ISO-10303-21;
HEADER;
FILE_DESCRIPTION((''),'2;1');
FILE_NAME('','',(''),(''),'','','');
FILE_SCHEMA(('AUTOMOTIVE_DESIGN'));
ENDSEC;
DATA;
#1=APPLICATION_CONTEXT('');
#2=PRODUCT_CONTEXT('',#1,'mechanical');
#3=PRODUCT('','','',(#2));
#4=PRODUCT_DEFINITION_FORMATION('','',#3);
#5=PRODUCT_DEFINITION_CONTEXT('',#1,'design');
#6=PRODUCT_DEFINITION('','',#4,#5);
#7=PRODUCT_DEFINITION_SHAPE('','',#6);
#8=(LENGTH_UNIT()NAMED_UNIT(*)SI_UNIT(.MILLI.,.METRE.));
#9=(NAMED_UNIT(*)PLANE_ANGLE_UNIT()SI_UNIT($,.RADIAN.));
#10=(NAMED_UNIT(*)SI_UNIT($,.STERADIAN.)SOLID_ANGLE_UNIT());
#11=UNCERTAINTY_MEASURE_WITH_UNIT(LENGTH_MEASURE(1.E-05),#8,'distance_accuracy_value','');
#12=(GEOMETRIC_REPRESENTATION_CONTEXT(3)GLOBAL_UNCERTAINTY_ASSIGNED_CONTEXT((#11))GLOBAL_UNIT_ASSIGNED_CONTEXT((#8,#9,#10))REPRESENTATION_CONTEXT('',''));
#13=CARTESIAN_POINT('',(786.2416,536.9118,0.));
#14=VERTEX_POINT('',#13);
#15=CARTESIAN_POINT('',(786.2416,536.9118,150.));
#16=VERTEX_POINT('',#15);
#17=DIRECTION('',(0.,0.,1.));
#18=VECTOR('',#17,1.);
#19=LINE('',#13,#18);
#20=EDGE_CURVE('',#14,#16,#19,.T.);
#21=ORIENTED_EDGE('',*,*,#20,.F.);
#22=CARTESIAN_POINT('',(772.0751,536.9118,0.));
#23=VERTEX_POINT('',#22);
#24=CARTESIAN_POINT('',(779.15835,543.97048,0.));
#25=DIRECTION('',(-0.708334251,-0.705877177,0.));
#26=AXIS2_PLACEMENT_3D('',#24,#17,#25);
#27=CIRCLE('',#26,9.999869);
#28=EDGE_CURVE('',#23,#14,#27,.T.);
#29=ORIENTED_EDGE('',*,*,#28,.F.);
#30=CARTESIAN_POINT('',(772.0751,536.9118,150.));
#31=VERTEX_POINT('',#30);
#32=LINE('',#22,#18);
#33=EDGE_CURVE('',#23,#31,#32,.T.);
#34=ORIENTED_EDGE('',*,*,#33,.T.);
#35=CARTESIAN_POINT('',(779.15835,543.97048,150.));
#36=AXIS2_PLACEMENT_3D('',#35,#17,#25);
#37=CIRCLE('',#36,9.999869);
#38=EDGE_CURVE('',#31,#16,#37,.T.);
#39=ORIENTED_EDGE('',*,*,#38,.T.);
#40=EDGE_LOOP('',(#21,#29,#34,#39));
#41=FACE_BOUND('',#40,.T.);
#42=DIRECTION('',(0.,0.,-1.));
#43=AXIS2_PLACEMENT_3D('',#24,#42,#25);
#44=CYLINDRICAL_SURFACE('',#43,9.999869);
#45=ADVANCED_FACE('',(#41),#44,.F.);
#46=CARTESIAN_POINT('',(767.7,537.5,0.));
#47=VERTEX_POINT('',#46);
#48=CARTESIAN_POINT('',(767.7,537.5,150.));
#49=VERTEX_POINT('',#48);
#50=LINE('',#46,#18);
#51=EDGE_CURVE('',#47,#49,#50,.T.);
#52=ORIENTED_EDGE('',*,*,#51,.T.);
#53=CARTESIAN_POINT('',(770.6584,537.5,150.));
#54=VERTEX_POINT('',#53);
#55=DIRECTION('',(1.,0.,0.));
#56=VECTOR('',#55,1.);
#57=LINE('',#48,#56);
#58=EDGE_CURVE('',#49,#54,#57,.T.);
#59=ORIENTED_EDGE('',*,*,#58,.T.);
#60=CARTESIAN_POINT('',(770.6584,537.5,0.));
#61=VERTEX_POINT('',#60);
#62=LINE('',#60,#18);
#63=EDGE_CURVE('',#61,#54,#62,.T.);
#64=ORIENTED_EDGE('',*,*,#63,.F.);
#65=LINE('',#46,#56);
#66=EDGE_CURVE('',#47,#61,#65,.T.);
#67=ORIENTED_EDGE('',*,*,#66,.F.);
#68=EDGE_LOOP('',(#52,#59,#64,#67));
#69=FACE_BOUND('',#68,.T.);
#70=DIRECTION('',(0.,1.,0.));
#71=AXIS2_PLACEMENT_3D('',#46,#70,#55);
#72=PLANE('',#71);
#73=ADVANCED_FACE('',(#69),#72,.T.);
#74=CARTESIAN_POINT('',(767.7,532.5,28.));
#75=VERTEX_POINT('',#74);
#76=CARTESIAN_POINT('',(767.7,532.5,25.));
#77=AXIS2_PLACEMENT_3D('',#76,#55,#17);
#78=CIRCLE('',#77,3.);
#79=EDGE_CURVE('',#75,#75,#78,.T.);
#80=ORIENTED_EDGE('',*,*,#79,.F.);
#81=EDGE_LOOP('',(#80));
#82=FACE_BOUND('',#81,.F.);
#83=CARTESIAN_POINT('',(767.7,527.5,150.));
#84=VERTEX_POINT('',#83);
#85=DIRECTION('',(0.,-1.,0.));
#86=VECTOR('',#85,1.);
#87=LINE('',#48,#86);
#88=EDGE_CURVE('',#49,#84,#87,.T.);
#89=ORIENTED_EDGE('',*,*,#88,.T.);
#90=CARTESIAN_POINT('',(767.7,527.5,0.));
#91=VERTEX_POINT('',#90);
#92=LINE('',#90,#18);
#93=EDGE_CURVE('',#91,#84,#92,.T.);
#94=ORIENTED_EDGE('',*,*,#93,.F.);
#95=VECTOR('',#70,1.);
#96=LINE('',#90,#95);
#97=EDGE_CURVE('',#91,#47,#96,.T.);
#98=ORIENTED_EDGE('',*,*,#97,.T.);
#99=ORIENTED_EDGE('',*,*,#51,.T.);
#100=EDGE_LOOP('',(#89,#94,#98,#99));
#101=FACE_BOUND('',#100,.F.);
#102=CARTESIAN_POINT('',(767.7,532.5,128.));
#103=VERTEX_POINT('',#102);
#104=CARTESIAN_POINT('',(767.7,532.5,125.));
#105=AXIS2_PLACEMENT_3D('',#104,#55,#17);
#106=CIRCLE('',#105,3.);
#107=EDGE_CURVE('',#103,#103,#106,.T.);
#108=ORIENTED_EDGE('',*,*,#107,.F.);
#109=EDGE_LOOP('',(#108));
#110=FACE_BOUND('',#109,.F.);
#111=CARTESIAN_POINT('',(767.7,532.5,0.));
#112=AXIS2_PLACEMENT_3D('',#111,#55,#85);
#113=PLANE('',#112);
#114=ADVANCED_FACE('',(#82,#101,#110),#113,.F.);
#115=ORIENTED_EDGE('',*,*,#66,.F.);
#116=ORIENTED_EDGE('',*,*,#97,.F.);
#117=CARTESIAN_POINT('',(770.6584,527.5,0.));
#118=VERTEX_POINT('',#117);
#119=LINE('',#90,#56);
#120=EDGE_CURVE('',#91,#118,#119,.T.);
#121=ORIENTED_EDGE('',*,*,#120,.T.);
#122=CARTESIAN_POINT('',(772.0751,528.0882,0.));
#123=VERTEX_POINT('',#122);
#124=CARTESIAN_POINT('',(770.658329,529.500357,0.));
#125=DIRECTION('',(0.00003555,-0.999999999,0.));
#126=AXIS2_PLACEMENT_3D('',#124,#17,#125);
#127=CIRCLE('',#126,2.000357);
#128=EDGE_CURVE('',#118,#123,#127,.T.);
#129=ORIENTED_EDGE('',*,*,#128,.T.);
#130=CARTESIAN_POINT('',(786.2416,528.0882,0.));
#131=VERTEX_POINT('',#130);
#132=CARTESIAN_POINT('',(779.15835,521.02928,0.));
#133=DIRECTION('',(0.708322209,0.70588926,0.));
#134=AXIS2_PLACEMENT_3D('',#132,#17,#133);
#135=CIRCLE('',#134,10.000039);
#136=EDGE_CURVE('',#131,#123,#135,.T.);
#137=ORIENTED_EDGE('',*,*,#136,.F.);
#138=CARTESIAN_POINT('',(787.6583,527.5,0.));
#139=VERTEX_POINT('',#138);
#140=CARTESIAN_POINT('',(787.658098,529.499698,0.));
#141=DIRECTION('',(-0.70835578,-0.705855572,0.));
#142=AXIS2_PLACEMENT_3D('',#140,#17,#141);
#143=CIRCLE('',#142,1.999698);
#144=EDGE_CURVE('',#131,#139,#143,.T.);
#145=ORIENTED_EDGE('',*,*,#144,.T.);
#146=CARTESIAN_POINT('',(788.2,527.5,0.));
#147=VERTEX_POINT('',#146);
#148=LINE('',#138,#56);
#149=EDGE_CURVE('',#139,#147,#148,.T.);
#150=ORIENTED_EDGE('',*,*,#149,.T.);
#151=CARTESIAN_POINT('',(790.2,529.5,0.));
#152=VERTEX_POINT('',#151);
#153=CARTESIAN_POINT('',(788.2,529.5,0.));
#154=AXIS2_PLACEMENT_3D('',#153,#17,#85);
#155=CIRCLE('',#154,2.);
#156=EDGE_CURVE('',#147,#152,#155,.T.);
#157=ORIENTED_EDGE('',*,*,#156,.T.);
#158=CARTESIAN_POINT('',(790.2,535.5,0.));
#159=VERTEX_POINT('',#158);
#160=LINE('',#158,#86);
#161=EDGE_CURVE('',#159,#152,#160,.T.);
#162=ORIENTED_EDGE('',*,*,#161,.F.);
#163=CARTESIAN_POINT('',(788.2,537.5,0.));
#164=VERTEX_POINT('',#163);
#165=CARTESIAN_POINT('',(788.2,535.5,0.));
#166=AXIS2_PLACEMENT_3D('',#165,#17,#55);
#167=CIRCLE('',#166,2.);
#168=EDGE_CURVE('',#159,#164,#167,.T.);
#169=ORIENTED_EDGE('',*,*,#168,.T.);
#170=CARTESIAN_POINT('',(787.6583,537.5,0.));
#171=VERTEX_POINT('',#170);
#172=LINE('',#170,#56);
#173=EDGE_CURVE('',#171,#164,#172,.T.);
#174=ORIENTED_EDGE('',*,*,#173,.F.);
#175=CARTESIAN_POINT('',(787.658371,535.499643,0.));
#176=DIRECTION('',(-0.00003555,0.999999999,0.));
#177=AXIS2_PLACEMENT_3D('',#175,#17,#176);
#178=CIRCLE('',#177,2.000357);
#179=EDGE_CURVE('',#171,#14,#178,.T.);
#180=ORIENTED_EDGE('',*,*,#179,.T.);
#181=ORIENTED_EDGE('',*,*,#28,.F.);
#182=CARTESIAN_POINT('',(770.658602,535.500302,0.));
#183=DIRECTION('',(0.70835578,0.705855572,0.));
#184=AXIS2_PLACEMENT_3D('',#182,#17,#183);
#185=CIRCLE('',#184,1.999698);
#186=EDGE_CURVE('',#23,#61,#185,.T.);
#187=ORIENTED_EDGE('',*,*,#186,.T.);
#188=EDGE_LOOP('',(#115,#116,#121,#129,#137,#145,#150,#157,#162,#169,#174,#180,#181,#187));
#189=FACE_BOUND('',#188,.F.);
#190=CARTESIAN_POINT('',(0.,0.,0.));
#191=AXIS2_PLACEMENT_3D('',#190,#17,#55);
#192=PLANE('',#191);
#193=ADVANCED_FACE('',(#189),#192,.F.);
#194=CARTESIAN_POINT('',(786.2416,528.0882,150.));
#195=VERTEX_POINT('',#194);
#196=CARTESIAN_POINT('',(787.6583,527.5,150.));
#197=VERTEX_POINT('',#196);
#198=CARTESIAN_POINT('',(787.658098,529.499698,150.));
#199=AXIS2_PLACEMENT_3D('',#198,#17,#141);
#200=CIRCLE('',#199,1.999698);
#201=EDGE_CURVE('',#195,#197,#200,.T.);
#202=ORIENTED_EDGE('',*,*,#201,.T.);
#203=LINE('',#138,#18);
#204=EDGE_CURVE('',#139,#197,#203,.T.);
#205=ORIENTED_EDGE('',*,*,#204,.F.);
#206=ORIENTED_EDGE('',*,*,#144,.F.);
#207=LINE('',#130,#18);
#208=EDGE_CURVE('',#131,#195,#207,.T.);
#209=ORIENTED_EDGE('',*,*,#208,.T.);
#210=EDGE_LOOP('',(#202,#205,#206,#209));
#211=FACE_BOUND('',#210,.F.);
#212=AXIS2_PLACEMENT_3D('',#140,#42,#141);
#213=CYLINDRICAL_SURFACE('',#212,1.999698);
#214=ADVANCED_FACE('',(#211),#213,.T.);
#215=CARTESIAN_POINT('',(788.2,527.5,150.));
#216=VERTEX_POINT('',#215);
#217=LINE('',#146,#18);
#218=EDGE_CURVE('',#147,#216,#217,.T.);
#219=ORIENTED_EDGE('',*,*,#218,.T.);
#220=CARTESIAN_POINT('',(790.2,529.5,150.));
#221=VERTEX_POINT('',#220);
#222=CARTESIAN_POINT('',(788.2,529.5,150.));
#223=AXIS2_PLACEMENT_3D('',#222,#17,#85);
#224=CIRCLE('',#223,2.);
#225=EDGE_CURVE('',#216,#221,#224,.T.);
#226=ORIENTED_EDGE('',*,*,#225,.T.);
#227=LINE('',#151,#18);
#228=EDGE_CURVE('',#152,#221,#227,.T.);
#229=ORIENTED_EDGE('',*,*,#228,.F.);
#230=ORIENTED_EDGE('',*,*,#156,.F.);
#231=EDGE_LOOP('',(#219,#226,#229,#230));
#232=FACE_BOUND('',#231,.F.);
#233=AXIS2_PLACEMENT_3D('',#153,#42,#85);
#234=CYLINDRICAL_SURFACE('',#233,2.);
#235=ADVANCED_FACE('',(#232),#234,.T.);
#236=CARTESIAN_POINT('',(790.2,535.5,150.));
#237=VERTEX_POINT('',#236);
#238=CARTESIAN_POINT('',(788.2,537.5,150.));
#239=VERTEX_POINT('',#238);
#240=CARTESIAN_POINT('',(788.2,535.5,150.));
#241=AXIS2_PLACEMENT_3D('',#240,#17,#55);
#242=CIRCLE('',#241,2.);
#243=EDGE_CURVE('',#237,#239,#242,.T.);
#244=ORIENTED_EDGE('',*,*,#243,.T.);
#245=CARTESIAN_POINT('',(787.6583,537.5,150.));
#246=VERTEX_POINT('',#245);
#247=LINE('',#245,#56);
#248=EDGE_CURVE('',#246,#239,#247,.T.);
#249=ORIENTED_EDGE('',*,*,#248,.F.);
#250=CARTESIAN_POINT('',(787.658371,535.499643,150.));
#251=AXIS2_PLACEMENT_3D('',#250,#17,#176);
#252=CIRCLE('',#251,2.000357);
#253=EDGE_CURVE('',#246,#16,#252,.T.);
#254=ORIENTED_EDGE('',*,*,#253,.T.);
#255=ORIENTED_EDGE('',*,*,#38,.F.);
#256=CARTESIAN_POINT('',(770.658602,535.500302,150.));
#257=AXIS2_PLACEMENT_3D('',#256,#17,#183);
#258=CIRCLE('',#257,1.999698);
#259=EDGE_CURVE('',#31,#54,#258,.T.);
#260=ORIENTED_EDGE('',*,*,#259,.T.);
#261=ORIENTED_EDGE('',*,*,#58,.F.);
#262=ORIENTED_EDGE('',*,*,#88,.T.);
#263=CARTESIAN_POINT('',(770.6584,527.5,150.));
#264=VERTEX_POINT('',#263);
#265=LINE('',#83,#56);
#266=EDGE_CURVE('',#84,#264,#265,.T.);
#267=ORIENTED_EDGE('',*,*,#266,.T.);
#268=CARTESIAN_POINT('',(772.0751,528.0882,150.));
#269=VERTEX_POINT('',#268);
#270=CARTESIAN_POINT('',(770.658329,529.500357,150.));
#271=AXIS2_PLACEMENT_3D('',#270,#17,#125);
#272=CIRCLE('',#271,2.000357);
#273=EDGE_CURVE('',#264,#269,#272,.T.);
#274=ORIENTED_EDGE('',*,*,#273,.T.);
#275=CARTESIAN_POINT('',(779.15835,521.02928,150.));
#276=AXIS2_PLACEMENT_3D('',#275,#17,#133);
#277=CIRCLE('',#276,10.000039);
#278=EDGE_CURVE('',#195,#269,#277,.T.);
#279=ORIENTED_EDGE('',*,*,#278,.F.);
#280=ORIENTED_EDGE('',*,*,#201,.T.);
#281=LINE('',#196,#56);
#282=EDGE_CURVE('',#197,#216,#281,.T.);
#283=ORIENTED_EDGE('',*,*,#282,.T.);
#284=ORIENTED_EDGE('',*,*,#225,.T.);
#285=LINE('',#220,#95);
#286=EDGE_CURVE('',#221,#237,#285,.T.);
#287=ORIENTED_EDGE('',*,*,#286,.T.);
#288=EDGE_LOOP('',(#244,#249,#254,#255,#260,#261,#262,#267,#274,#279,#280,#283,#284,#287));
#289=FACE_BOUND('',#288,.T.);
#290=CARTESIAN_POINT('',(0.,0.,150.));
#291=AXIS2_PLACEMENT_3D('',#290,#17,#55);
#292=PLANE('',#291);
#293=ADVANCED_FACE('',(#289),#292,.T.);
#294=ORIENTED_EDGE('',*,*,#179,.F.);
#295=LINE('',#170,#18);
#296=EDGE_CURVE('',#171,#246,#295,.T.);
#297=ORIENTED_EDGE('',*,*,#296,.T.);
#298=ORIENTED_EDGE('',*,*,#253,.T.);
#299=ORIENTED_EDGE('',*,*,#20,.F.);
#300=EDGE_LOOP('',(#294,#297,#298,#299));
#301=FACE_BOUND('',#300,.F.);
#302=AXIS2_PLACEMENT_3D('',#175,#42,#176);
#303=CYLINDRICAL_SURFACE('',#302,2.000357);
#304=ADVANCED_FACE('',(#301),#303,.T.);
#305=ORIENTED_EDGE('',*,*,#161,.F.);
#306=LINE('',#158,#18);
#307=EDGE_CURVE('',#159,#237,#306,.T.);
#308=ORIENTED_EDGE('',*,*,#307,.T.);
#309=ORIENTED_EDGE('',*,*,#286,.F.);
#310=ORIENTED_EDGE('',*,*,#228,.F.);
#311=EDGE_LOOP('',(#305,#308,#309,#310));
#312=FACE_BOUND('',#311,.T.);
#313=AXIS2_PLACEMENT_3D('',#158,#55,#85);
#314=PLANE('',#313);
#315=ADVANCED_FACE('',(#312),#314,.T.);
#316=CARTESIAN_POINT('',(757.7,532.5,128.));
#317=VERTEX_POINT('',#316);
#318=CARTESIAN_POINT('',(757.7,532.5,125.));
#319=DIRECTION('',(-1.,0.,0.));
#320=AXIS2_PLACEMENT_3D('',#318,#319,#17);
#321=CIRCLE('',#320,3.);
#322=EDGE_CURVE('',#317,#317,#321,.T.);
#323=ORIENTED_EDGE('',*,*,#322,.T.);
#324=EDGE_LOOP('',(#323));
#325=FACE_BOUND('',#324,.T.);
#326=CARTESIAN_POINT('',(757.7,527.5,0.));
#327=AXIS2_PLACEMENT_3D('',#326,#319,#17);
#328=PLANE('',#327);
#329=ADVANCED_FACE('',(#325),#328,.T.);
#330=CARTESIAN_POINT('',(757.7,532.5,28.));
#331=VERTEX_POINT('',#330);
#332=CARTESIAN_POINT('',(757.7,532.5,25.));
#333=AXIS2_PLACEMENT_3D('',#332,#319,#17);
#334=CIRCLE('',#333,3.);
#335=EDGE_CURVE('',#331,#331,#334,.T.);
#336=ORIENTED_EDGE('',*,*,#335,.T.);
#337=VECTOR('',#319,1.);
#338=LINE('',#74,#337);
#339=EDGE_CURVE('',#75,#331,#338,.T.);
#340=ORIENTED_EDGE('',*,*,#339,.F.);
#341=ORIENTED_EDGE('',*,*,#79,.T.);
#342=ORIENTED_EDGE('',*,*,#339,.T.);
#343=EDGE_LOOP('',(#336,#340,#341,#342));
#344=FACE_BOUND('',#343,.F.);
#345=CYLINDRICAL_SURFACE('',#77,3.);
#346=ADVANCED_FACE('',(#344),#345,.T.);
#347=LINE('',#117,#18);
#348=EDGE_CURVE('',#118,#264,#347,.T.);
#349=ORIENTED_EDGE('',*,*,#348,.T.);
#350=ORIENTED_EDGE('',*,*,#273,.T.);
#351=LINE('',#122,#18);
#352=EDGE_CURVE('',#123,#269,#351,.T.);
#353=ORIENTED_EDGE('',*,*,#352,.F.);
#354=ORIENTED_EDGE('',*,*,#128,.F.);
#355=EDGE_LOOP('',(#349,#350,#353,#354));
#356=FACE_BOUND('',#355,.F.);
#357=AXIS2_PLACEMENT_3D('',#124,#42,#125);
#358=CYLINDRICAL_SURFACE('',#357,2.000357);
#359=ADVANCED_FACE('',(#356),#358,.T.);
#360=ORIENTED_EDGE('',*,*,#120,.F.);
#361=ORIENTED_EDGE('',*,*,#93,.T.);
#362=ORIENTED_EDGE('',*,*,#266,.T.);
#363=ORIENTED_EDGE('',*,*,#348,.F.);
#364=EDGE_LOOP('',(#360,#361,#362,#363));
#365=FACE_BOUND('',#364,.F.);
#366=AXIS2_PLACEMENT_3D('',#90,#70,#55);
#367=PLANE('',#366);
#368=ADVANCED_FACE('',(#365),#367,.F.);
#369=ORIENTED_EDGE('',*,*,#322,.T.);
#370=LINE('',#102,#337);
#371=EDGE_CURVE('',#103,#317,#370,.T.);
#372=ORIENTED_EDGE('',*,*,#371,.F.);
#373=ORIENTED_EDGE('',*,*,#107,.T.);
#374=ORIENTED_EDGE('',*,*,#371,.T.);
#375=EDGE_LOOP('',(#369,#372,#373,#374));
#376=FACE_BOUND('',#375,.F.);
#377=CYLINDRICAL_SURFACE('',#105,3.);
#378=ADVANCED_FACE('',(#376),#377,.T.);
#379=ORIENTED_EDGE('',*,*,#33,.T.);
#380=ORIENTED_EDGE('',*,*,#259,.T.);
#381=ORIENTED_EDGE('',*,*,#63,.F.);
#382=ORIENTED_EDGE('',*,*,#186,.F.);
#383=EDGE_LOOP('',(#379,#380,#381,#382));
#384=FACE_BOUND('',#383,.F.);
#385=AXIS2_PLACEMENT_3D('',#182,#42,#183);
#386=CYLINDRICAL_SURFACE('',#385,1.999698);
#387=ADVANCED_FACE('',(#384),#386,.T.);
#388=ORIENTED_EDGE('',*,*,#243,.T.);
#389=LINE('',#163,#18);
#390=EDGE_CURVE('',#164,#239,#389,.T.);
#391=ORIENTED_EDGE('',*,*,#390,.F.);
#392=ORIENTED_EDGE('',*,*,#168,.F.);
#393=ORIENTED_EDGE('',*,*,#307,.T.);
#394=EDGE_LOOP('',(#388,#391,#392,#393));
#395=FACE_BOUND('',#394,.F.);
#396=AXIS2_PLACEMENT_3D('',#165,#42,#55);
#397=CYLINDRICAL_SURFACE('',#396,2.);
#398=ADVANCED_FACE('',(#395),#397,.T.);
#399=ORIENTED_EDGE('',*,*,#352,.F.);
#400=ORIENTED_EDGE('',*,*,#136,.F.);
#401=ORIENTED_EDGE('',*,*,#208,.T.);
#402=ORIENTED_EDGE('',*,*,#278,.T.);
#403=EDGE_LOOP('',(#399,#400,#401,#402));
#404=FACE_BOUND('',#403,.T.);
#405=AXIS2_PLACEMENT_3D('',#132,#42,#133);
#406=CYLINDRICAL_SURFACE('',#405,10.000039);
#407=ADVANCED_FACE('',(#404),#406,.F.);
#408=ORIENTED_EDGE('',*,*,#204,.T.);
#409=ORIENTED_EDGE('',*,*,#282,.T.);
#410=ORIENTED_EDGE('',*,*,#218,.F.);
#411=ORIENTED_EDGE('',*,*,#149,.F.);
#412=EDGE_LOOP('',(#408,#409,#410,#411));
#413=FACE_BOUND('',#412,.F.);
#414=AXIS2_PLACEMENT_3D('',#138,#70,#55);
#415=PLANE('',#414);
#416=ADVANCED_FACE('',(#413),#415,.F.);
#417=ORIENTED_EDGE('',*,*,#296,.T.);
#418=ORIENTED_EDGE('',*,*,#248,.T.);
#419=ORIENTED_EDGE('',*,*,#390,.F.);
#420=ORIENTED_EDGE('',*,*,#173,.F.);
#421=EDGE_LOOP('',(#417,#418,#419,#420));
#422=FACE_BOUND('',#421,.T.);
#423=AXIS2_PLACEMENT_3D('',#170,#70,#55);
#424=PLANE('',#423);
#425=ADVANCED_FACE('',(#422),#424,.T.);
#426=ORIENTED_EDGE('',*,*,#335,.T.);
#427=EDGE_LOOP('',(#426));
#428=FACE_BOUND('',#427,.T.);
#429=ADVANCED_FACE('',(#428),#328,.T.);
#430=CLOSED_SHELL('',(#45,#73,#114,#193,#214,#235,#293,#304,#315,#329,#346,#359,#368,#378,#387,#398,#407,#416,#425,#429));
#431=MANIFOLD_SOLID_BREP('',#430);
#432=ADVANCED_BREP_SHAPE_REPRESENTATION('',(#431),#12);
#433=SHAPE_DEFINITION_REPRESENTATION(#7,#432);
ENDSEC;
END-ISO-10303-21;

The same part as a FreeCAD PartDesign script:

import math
import FreeCAD as App
import Part
import Sketcher

doc = App.newDocument("Part")
body = doc.addObject("PartDesign::Body", "Body")

# Sketch on XY plane
sketch1 = body.newObject("Sketcher::SketchObject", "Sketch")
sketch1.AttachmentSupport = (doc.getObject("XY_Plane"), [""])
sketch1.MapMode = "FlatFace"
sketch1.addGeometry([
    Part.ArcOfCircle(Part.Circle(App.Vector(779.1584, 521.0294, 0), App.Vector(0, 0, 1), 9.999919), math.radians(44.901144), math.radians(135.09926)),  # 0
    Part.ArcOfCircle(Part.Circle(App.Vector(787.6583, 529.5, 0), App.Vector(0, 0, 1), 2.000055), math.radians(-135.099257), math.radians(-90)),  # 1
    Part.LineSegment(App.Vector(787.6583, 527.5, 0), App.Vector(788.2, 527.5, 0)),  # 2
    Part.ArcOfCircle(Part.Circle(App.Vector(788.2, 529.5, 0), App.Vector(0, 0, 1), 2), math.radians(-90), math.radians(0)),  # 3
    Part.LineSegment(App.Vector(790.2, 529.5, 0), App.Vector(790.2, 535.5, 0)),  # 4
    Part.ArcOfCircle(Part.Circle(App.Vector(788.2, 535.5, 0), App.Vector(0, 0, 1), 2), math.radians(0), math.radians(90)),  # 5
    Part.LineSegment(App.Vector(788.2, 537.5, 0), App.Vector(787.6583, 537.5, 0)),  # 6
    Part.ArcOfCircle(Part.Circle(App.Vector(787.6583, 535.5, 0), App.Vector(0, 0, 1), 2), math.radians(90), math.radians(135.099257)),  # 7
    Part.ArcOfCircle(Part.Circle(App.Vector(779.1584, 543.9706, 0), App.Vector(0, 0, 1), 9.99999), math.radians(-135.09926), math.radians(-44.901144)),  # 8
    Part.ArcOfCircle(Part.Circle(App.Vector(770.6584, 535.5, 0), App.Vector(0, 0, 1), 2.000055), math.radians(44.900743), math.radians(90)),  # 9
    Part.LineSegment(App.Vector(770.6584, 537.5, 0), App.Vector(767.7, 537.5, 0)),  # 10
    Part.LineSegment(App.Vector(767.7, 537.5, 0), App.Vector(767.7, 527.5, 0)),  # 11
    Part.LineSegment(App.Vector(767.7, 527.5, 0), App.Vector(770.6584, 527.5, 0)),  # 12
    Part.ArcOfCircle(Part.Circle(App.Vector(770.6584, 529.5, 0), App.Vector(0, 0, 1), 2), math.radians(-90), math.radians(-44.900743)),  # 13
], False)
sketch1.addConstraint([
    Sketcher.Constraint("Tangent", 0, 1, 1, 1),
    Sketcher.Constraint("Tangent", 1, 2, 2, 1),
    Sketcher.Constraint("Tangent", 2, 2, 3, 1),
    Sketcher.Constraint("Tangent", 3, 2, 4, 1),
    Sketcher.Constraint("Tangent", 4, 2, 5, 1),
    Sketcher.Constraint("Tangent", 5, 2, 6, 1),
    Sketcher.Constraint("Tangent", 6, 2, 7, 1),
    Sketcher.Constraint("Tangent", 7, 2, 8, 2),
    Sketcher.Constraint("Tangent", 8, 1, 9, 1),
    Sketcher.Constraint("Tangent", 9, 2, 10, 1),
    Sketcher.Constraint("Coincident", 10, 2, 11, 1),
    Sketcher.Constraint("Coincident", 11, 2, 12, 1),
    Sketcher.Constraint("Tangent", 12, 2, 13, 1),
    Sketcher.Constraint("Tangent", 13, 2, 0, 2),
    Sketcher.Constraint("Horizontal", 2),
    Sketcher.Constraint("Vertical", 4),
    Sketcher.Constraint("Horizontal", 6),
    Sketcher.Constraint("Horizontal", 10),
    Sketcher.Constraint("Vertical", 11),
    Sketcher.Constraint("Horizontal", 12),
    Sketcher.Constraint("Equal", 1, 3),
    Sketcher.Constraint("Equal", 3, 5),
    Sketcher.Constraint("Equal", 5, 7),
    Sketcher.Constraint("Equal", 0, 8),
    Sketcher.Constraint("Equal", 7, 9),
    Sketcher.Constraint("Equal", 9, 13),
    Sketcher.Constraint("Horizontal", 7, 3, 9, 3),
    Sketcher.Constraint("Horizontal", 3, 3, 13, 3),
    Sketcher.Constraint("Vertical", 1, 3, 7, 3),
    Sketcher.Constraint("Vertical", 0, 3, 8, 3),
    Sketcher.Constraint("Radius", 0, 10.0),
    Sketcher.Constraint("Radius", 1, 2.0),
    Sketcher.Constraint("DistanceY", 4, 1, 4, 2, 6.0),
    Sketcher.Constraint("DistanceX", 9, 3, 7, 3, 17.0),
    Sketcher.Constraint("DistanceY", -1, 1, 1, 3, 529.5),
    Sketcher.Constraint("DistanceX", -1, 1, 3, 3, 788.2),
    Sketcher.Constraint("DistanceX", -1, 1, 10, 2, 767.7),
    Sketcher.Constraint("DistanceX", 2, 1, 2, 2, 0.5417),
])
pad1 = body.newObject("PartDesign::Pad", "Pad")
pad1.Profile = sketch1
pad1.Length = 150

# Sketch on YZ plane
sketch2 = body.newObject("Sketcher::SketchObject", "Sketch001")
sketch2.AttachmentSupport = (doc.getObject("YZ_Plane"), [""])
sketch2.MapMode = "FlatFace"
sketch2.AttachmentOffset = App.Placement(App.Vector(0, 0, 767.7), App.Rotation())
sketch2.addGeometry([
    Part.Circle(App.Vector(532.5, 25, 0), App.Vector(0, 0, 1), 3),
    Part.Circle(App.Vector(532.5, 125, 0), App.Vector(0, 0, 1), 3),
], False)
sketch2.addConstraint([
    Sketcher.Constraint("Equal", 0, 1),
    Sketcher.Constraint("Vertical", 0, 3, 1, 3),
    Sketcher.Constraint("Diameter", 0, 6.0),
    Sketcher.Constraint("DistanceY", -1, 1, 0, 3, 25.0),
    Sketcher.Constraint("DistanceY", -1, 1, 1, 3, 125.0),
    Sketcher.Constraint("DistanceX", -1, 1, 0, 3, 532.5),
])
pad2 = body.newObject("PartDesign::Pad", "Pad001")
pad2.Profile = sketch2
pad2.Length = 10
pad2.Reversed = True

doc.recompute()
